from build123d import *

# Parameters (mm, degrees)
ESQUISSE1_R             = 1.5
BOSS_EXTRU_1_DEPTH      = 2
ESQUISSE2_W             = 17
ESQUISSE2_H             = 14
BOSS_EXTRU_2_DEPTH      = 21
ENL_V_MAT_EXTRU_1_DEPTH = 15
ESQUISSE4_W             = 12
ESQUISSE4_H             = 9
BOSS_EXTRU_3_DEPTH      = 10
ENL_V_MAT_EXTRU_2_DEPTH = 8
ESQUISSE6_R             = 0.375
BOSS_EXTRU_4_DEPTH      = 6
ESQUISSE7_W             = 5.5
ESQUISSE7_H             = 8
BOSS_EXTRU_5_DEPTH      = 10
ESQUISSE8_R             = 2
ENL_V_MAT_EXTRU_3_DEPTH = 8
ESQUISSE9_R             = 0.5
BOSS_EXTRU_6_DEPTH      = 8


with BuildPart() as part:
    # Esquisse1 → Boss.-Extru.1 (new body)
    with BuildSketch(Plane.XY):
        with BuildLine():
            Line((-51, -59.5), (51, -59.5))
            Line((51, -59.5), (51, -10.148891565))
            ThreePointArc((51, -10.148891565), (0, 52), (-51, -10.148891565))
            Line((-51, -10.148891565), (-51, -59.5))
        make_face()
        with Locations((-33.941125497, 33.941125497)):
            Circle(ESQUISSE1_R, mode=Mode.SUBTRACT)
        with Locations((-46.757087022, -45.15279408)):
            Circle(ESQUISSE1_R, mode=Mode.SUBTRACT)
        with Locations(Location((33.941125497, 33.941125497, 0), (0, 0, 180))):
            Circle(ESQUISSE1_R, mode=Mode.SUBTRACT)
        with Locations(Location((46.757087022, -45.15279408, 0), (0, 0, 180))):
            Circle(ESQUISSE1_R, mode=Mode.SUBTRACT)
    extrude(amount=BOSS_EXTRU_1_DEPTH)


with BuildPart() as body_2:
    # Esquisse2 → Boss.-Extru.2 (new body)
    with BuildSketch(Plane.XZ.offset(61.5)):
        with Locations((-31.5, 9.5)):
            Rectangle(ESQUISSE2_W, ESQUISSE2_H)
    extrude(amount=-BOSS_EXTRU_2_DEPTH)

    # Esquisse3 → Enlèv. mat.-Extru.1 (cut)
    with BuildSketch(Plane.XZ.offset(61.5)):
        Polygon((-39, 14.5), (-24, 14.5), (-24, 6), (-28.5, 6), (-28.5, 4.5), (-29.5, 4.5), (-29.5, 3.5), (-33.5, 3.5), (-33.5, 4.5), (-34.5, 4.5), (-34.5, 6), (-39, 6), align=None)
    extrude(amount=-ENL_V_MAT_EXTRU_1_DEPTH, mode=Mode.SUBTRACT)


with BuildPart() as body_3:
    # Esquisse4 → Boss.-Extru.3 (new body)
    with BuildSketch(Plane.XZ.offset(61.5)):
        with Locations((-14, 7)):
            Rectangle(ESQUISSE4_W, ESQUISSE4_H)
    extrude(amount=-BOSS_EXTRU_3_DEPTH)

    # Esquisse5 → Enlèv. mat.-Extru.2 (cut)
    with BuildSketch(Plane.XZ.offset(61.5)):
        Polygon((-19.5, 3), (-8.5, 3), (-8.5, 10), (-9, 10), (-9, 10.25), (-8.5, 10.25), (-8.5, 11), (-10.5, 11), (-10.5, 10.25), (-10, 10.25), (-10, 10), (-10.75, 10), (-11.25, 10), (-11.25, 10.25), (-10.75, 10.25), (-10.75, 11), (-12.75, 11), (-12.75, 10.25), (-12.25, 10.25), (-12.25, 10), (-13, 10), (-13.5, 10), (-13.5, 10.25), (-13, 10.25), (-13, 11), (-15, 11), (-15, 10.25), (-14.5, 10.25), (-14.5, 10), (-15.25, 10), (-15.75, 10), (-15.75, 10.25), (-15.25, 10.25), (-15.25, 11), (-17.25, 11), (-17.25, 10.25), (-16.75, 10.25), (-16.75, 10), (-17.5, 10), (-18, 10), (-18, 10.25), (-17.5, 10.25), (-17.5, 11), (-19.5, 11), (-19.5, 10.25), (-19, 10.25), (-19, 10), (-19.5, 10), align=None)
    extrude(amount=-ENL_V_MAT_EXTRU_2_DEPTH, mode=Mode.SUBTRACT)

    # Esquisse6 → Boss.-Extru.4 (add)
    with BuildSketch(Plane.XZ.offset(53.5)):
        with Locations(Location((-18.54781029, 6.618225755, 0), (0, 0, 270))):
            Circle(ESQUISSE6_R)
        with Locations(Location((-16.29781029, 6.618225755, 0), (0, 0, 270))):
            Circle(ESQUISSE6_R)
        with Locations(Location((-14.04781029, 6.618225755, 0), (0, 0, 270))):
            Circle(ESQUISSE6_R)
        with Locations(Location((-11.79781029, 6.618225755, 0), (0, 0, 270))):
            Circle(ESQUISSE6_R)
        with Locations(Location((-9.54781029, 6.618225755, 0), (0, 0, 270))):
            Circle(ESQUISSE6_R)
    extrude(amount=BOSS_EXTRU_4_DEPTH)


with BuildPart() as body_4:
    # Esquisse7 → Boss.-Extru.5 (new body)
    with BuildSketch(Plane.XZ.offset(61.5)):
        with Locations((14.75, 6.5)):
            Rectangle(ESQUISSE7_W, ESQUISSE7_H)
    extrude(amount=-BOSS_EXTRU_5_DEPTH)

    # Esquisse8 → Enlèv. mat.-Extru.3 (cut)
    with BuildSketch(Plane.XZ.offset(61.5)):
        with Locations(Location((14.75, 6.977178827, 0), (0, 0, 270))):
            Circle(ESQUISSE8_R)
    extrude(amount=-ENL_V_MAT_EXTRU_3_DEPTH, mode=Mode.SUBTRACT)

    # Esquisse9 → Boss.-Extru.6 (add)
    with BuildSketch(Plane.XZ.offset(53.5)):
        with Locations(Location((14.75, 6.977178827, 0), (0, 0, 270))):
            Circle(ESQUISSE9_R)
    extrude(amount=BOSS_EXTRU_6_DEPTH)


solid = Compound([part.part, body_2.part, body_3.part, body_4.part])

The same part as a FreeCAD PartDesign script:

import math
import FreeCAD as App
import Part
import Sketcher

V = App.Vector
Q = App.Units.Quantity


def add_polygon(sketch, points):
    """Adds a closed chain of lines whose ends are joined by coincident constraints."""
    first, n = sketch.GeometryCount, len(points)
    for a, b in zip(points, points[1:] + points[:1]):
        sketch.addGeometry(Part.LineSegment(App.Vector(*a, 0), App.Vector(*b, 0)), False)
    for i in range(n):
        sketch.addConstraint(Sketcher.Constraint("Coincident", first + i, 2, first + (i + 1) % n, 1))

doc = App.newDocument("Part")
body = doc.addObject("PartDesign::Body", "Body")

sketch1 = doc.addObject("Sketcher::SketchObject", "Sketch")
body.addObject(sketch1)
sketch1.AttachmentSupport = (doc.XY_Plane, [""])
sketch1.MapMode = "FlatFace"
sketch1.addGeometry([
    Part.LineSegment(V(-51, -59.5, 0), V(51, -59.5, 0)),
    Part.LineSegment(V(51, -59.5, 0), V(51, -10.148892, 0)),
    Part.ArcOfCircle(Part.Circle(V(0, 0, 0), V(0, 0, 1), 52), math.radians(-11.254713), math.radians(191.254713)),
    Part.LineSegment(V(-51, -10.148892, 0), V(-51, -59.5, 0)),
    Part.Circle(V(-46.757087, -45.152794, 0), V(0, 0, 1), 1.5),
    Part.Circle(V(46.757087, -45.152794, 0), V(0, 0, 1), 1.5),
    Part.Circle(V(-33.941125, 33.941125, 0), V(0, 0, 1), 1.5),
    Part.Circle(V(33.941125, 33.941125, 0), V(0, 0, 1), 1.5),
], False)
sketch1.addConstraint([
    Sketcher.Constraint("Coincident", 0, 2, 1, 1),
    Sketcher.Constraint("Coincident", 1, 2, 2, 1),
    Sketcher.Constraint("Coincident", 2, 2, 3, 1),
    Sketcher.Constraint("Coincident", 3, 2, 0, 1),
    Sketcher.Constraint("Horizontal", 0),
    Sketcher.Constraint("Vertical", 1),
    Sketcher.Constraint("Vertical", 3),
    Sketcher.Constraint("Coincident", 2, 3, -1, 1),
    Sketcher.Constraint("Equal", 4, 5),
    Sketcher.Constraint("Equal", 5, 6),
    Sketcher.Constraint("Equal", 6, 7),
    Sketcher.Constraint("Symmetric", 4, 3, 5, 3, -2),
    Sketcher.Constraint("Symmetric", 6, 3, 7, 3, -2),
    Sketcher.Constraint("Horizontal", 1, 2, 2, 2),
    Sketcher.Constraint("Diameter", 4, Q("3 mm")),
    Sketcher.Constraint("Radius", 2, Q("52 mm")),
    Sketcher.Constraint("DistanceX", 0, 1, 0, 2, Q("102 mm")),
    Sketcher.Constraint("DistanceY", 0, 2, -1, 1, Q("59.5 mm")),
    Sketcher.Constraint("DistanceX", 4, 3, 6, 3, Q("12.815962 mm")),
    Sketcher.Constraint("DistanceY", 4, 3, 6, 3, Q("79.09392 mm")),
    Sketcher.Constraint("DistanceX", 6, 3, 7, 3, Q("67.882251 mm")),
    Sketcher.Constraint("DistanceY", 4, 3, -1, 1, Q("45.152794 mm")),
])
pad1 = doc.addObject("PartDesign::Pad", "Pad")
body.addObject(pad1)
pad1.Profile = sketch1
pad1.Length = 2
body2 = doc.addObject("PartDesign::Body", "Body001")

sketch2 = doc.addObject("Sketcher::SketchObject", "Sketch001")
body2.addObject(sketch2)
sketch2.AttachmentSupport = (doc.getObject("XZ_Plane001"), [""])
sketch2.MapMode = "FlatFace"
sketch2.AttachmentOffset = App.Placement(V(0, 0, 61.5), App.Rotation())
add_polygon(sketch2, [(-40, 16.5), (-40, 2.5), (-23, 2.5), (-23, 16.5)])
sketch2.addConstraint([
    Sketcher.Constraint("Vertical", 0),
    Sketcher.Constraint("Horizontal", 1),
    Sketcher.Constraint("Vertical", 2),
    Sketcher.Constraint("Horizontal", 3),
    Sketcher.Constraint("DistanceX", 1, 1, 1, 2, Q("17 mm")),
    Sketcher.Constraint("DistanceY", 0, 2, 0, 1, Q("14 mm")),
    Sketcher.Constraint("DistanceX", 0, 2, -1, 1, Q("40 mm")),
    Sketcher.Constraint("DistanceY", -1, 1, 0, 2, Q("2.5 mm")),
])
pad2 = doc.addObject("PartDesign::Pad", "Pad001")
body2.addObject(pad2)
pad2.Profile = sketch2
pad2.Length = 21
pad2.Reversed = True

sketch3 = doc.addObject("Sketcher::SketchObject", "Sketch002")
body2.addObject(sketch3)
sketch3.AttachmentSupport = (doc.getObject("XZ_Plane001"), [""])
sketch3.MapMode = "FlatFace"
sketch3.AttachmentOffset = App.Placement(V(0, 0, 61.5), App.Rotation())
add_polygon(sketch3, [(-24, 14.5), (-39, 14.5), (-39, 6), (-34.5, 6), (-34.5, 4.5), (-33.5, 4.5), (-33.5, 3.5), (-29.5, 3.5), (-29.5, 4.5), (-28.5, 4.5), (-28.5, 6), (-24, 6)])
sketch3.addConstraint([
    Sketcher.Constraint("Horizontal", 0),
    Sketcher.Constraint("Vertical", 1),
    Sketcher.Constraint("Horizontal", 2),
    Sketcher.Constraint("Vertical", 3),
    Sketcher.Constraint("Horizontal", 4),
    Sketcher.Constraint("Vertical", 5),
    Sketcher.Constraint("Horizontal", 6),
    Sketcher.Constraint("Vertical", 7),
    Sketcher.Constraint("Horizontal", 8),
    Sketcher.Constraint("Vertical", 9),
    Sketcher.Constraint("Horizontal", 10),
    Sketcher.Constraint("Vertical", 11),
    Sketcher.Constraint("Horizontal", 4, 2, 7, 2),
    Sketcher.Constraint("Horizontal", 2, 2, 9, 2),
    Sketcher.Constraint("Equal", 4, 8),
    Sketcher.Constraint("Equal", 2, 10),
    Sketcher.Constraint("Equal", 8, 5),
    Sketcher.Constraint("DistanceX", 0, 2, 0, 1, Q("15 mm")),
    Sketcher.Constraint("DistanceX", 4, 1, 4, 2, Q("1 mm")),
    Sketcher.Constraint("DistanceX", 6, 1, 6, 2, Q("4 mm")),
    Sketcher.Constraint("DistanceY", 1, 2, 1, 1, Q("8.5 mm")),
    Sketcher.Constraint("DistanceY", 3, 2, 3, 1, Q("1.5 mm")),
    Sketcher.Constraint("DistanceX", 0, 2, -1, 1, Q("39 mm")),
    Sketcher.Constraint("DistanceY", -1, 1, 1, 2, Q("6 mm")),
])
pocket1 = doc.addObject("PartDesign::Pocket", "Pocket")
body2.addObject(pocket1)
pocket1.Profile = sketch3
pocket1.Length = 15
body3 = doc.addObject("PartDesign::Body", "Body002")

sketch4 = doc.addObject("Sketcher::SketchObject", "Sketch003")
body3.addObject(sketch4)
sketch4.AttachmentSupport = (doc.getObject("XZ_Plane002"), [""])
sketch4.MapMode = "FlatFace"
sketch4.AttachmentOffset = App.Placement(V(0, 0, 61.5), App.Rotation())
add_polygon(sketch4, [(-20, 11.5), (-20, 2.5), (-8, 2.5), (-8, 11.5)])
sketch4.addConstraint([
    Sketcher.Constraint("Vertical", 0),
    Sketcher.Constraint("Horizontal", 1),
    Sketcher.Constraint("Vertical", 2),
    Sketcher.Constraint("Horizontal", 3),
    Sketcher.Constraint("DistanceX", 1, 1, 1, 2, Q("12 mm")),
    Sketcher.Constraint("DistanceY", 0, 2, 0, 1, Q("9 mm")),
    Sketcher.Constraint("DistanceX", 0, 2, -1, 1, Q("20 mm")),
    Sketcher.Constraint("DistanceY", -1, 1, 0, 2, Q("2.5 mm")),
])
pad3 = doc.addObject("PartDesign::Pad", "Pad002")
body3.addObject(pad3)
pad3.Profile = sketch4
pad3.Length = 10
pad3.Reversed = True

sketch5 = doc.addObject("Sketcher::SketchObject", "Sketch004")
body3.addObject(sketch5)
sketch5.AttachmentSupport = (doc.getObject("XZ_Plane002"), [""])
sketch5.MapMode = "FlatFace"
sketch5.AttachmentOffset = App.Placement(V(0, 0, 61.5), App.Rotation())
add_polygon(sketch5, [(-19.5, 3), (-8.5, 3), (-8.5, 10), (-9, 10), (-9, 10.25), (-8.5, 10.25), (-8.5, 11), (-10.5, 11), (-10.5, 10.25), (-10, 10.25), (-10, 10), (-11.25, 10), (-11.25, 10.25), (-10.75, 10.25), (-10.75, 11), (-12.75, 11), (-12.75, 10.25), (-12.25, 10.25), (-12.25, 10), (-13.5, 10), (-13.5, 10.25), (-13, 10.25), (-13, 11), (-15, 11), (-15, 10.25), (-14.5, 10.25), (-14.5, 10), (-15.75, 10), (-15.75, 10.25), (-15.25, 10.25), (-15.25, 11), (-17.25, 11), (-17.25, 10.25), (-16.75, 10.25), (-16.75, 10), (-18, 10), (-18, 10.25), (-17.5, 10.25), (-17.5, 11), (-19.5, 11), (-19.5, 10.25), (-19, 10.25), (-19, 10), (-19.5, 10)])
sketch5.addConstraint([
    Sketcher.Constraint("Horizontal", 0),
    Sketcher.Constraint("Vertical", 1),
    Sketcher.Constraint("Horizontal", 2),
    Sketcher.Constraint("Vertical", 3),
    Sketcher.Constraint("Horizontal", 4),
    Sketcher.Constraint("Vertical", 5),
    Sketcher.Constraint("Horizontal", 6),
    Sketcher.Constraint("Vertical", 7),
    Sketcher.Constraint("Horizontal", 8),
    Sketcher.Constraint("Vertical", 9),
    Sketcher.Constraint("Horizontal", 10),
    Sketcher.Constraint("Vertical", 11),
    Sketcher.Constraint("Horizontal", 12),
    Sketcher.Constraint("Vertical", 13),
    Sketcher.Constraint("Horizontal", 14),
    Sketcher.Constraint("Vertical", 15),
    Sketcher.Constraint("Horizontal", 16),
    Sketcher.Constraint("Vertical", 17),
    Sketcher.Constraint("Horizontal", 18),
    Sketcher.Constraint("Vertical", 19),
    Sketcher.Constraint("Horizontal", 20),
    Sketcher.Constraint("Vertical", 21),
    Sketcher.Constraint("Horizontal", 22),
    Sketcher.Constraint("Vertical", 23),
    Sketcher.Constraint("Horizontal", 24),
    Sketcher.Constraint("Vertical", 25),
    Sketcher.Constraint("Horizontal", 26),
    Sketcher.Constraint("Vertical", 27),
    Sketcher.Constraint("Horizontal", 28),
    Sketcher.Constraint("Vertical", 29),
    Sketcher.Constraint("Horizontal", 30),
    Sketcher.Constraint("Vertical", 31),
    Sketcher.Constraint("Horizontal", 32),
    Sketcher.Constraint("Vertical", 33),
    Sketcher.Constraint("Horizontal", 34),
    Sketcher.Constraint("Vertical", 35),
    Sketcher.Constraint("Horizontal", 36),
    Sketcher.Constraint("Vertical", 37),
    Sketcher.Constraint("Horizontal", 38),
    Sketcher.Constraint("Vertical", 39),
    Sketcher.Constraint("Horizontal", 40),
    Sketcher.Constraint("Vertical", 41),
    Sketcher.Constraint("Horizontal", 42),
    Sketcher.Constraint("Vertical", 43),
    Sketcher.Constraint("Horizontal", 4, 2, 7, 2),
    Sketcher.Constraint("Horizontal", 2, 2, 9, 2),
    Sketcher.Constraint("Horizontal", 8, 2, 11, 2),
    Sketcher.Constraint("Horizontal", 6, 2, 13, 2),
    Sketcher.Constraint("Horizontal", 12, 2, 15, 2),
    Sketcher.Constraint("Horizontal", 10, 2, 17, 2),
    Sketcher.Constraint("Horizontal", 16, 2, 19, 2),
    Sketcher.Constraint("Horizontal", 14, 2, 21, 2),
    Sketcher.Constraint("Horizontal", 20, 2, 23, 2),
    Sketcher.Constraint("Horizontal", 18, 2, 25, 2),
    Sketcher.Constraint("Horizontal", 24, 2, 27, 2),
    Sketcher.Constraint("Horizontal", 22, 2, 29, 2),
    Sketcher.Constraint("Horizontal", 28, 2, 31, 2),
    Sketcher.Constraint("Horizontal", 26, 2, 33, 2),
    Sketcher.Constraint("Horizontal", 32, 2, 35, 2),
    Sketcher.Constraint("Horizontal", 30, 2, 37, 2),
    Sketcher.Constraint("Horizontal", 36, 2, 39, 2),
    Sketcher.Constraint("Horizontal", 34, 2, 41, 2),
    Sketcher.Constraint("Vertical", 1, 2, 4, 2),
    Sketcher.Constraint("Vertical", 39, 2, 42, 2),
    Sketcher.Constraint("Equal", 4, 8),
    Sketcher.Constraint("Equal", 8, 12),
    Sketcher.Constraint("Equal", 6, 14),
    Sketcher.Constraint("Equal", 12, 16),
    Sketcher.Constraint("Equal", 10, 18),
    Sketcher.Constraint("Equal", 16, 20),
    Sketcher.Constraint("Equal", 14, 22),
    Sketcher.Constraint("Equal", 20, 24),
    Sketcher.Constraint("Equal", 18, 26),
    Sketcher.Constraint("Equal", 24, 28),
    Sketcher.Constraint("Equal", 22, 30),
    Sketcher.Constraint("Equal", 28, 32),
    Sketcher.Constraint("Equal", 26, 34),
    Sketcher.Constraint("Equal", 32, 36),
    Sketcher.Constraint("Equal", 30, 38),
    Sketcher.Constraint("Equal", 36, 40),
    Sketcher.Constraint("DistanceX", 0, 1, 0, 2, Q("11 mm")),
    Sketcher.Constraint("DistanceX", 6, 2, 6, 1, Q("2 mm")),
    Sketcher.Constraint("DistanceY", 1, 1, 1, 2, Q("7 mm")),
    Sketcher.Constraint("DistanceX", 2, 2, 2, 1, Q("0.5 mm")),
    Sketcher.Constraint("DistanceY", -1, 1, 0, 2, Q("3 mm")),
    Sketcher.Constraint("DistanceX", 2, 2, -1, 1, Q("9 mm")),
    Sketcher.Constraint("DistanceY", -1, 1, 5, 2, Q("11 mm")),
    Sketcher.Constraint("DistanceY", 3, 1, 3, 2, Q("0.25 mm")),
])
pocket2 = doc.addObject("PartDesign::Pocket", "Pocket001")
body3.addObject(pocket2)
pocket2.Profile = sketch5
pocket2.Length = 8

sketch6 = doc.addObject("Sketcher::SketchObject", "Sketch005")
body3.addObject(sketch6)
sketch6.AttachmentSupport = (doc.getObject("XZ_Plane002"), [""])
sketch6.MapMode = "FlatFace"
sketch6.AttachmentOffset = App.Placement(V(0, 0, 53.5), App.Rotation())
sketch6.addGeometry([
    Part.Circle(V(-18.54781, 6.618226, 0), V(0, 0, 1), 0.375),
    Part.Circle(V(-16.29781, 6.618226, 0), V(0, 0, 1), 0.375),
    Part.Circle(V(-14.04781, 6.618226, 0), V(0, 0, 1), 0.375),
    Part.Circle(V(-11.79781, 6.618226, 0), V(0, 0, 1), 0.375),
    Part.Circle(V(-9.54781, 6.618226, 0), V(0, 0, 1), 0.375),
], False)
sketch6.addConstraint([
    Sketcher.Constraint("Equal", 0, 1),
    Sketcher.Constraint("Equal", 1, 2),
    Sketcher.Constraint("Equal", 2, 3),
    Sketcher.Constraint("Equal", 3, 4),
    Sketcher.Constraint("Horizontal", 0, 3, 1, 3),
    Sketcher.Constraint("Horizontal", 1, 3, 2, 3),
    Sketcher.Constraint("Horizontal", 2, 3, 3, 3),
    Sketcher.Constraint("Horizontal", 3, 3, 4, 3),
    Sketcher.Constraint("Diameter", 0, Q("0.75 mm")),
    Sketcher.Constraint("DistanceX", 0, 3, 4, 3, Q("9 mm")),
    Sketcher.Constraint("DistanceX", 0, 3, 2, 3, Q("4.5 mm")),
    Sketcher.Constraint("DistanceX", 1, 3, 3, 3, Q("4.5 mm")),
    Sketcher.Constraint("DistanceX", 0, 3, 1, 3, Q("2.25 mm")),
    Sketcher.Constraint("DistanceX", 0, 3, -1, 1, Q("18.54781 mm")),
    Sketcher.Constraint("DistanceY", -1, 1, 0, 3, Q("6.618226 mm")),
])
pad4 = doc.addObject("PartDesign::Pad", "Pad003")
body3.addObject(pad4)
pad4.Profile = sketch6
pad4.Length = 6
body4 = doc.addObject("PartDesign::Body", "Body003")

sketch7 = doc.addObject("Sketcher::SketchObject", "Sketch006")
body4.addObject(sketch7)
sketch7.AttachmentSupport = (doc.getObject("XZ_Plane003"), [""])
sketch7.MapMode = "FlatFace"
sketch7.AttachmentOffset = App.Placement(V(0, 0, 61.5), App.Rotation())
add_polygon(sketch7, [(12, 10.5), (12, 2.5), (17.5, 2.5), (17.5, 10.5)])
sketch7.addConstraint([
    Sketcher.Constraint("Vertical", 0),
    Sketcher.Constraint("Horizontal", 1),
    Sketcher.Constraint("Vertical", 2),
    Sketcher.Constraint("Horizontal", 3),
    Sketcher.Constraint("DistanceY", 0, 2, 0, 1, Q("8 mm")),
    Sketcher.Constraint("DistanceX", 1, 1, 1, 2, Q("5.5 mm")),
    Sketcher.Constraint("DistanceX", -1, 1, 0, 2, Q("12 mm")),
    Sketcher.Constraint("DistanceY", -1, 1, 0, 2, Q("2.5 mm")),
])
pad5 = doc.addObject("PartDesign::Pad", "Pad004")
body4.addObject(pad5)
pad5.Profile = sketch7
pad5.Length = 10
pad5.Reversed = True

sketch8 = doc.addObject("Sketcher::SketchObject", "Sketch007")
body4.addObject(sketch8)
sketch8.AttachmentSupport = (doc.getObject("XZ_Plane003"), [""])
sketch8.MapMode = "FlatFace"
sketch8.AttachmentOffset = App.Placement(V(0, 0, 61.5), App.Rotation())
sketch8.addGeometry(Part.Circle(V(14.75, 6.977179, 0), V(0, 0, 1), 2), False)
sketch8.addConstraint([
    Sketcher.Constraint("Diameter", 0, Q("4 mm")),
    Sketcher.Constraint("DistanceX", -1, 1, 0, 3, Q("14.75 mm")),
    Sketcher.Constraint("DistanceY", -1, 1, 0, 3, Q("6.977179 mm")),
])
pocket3 = doc.addObject("PartDesign::Pocket", "Pocket002")
body4.addObject(pocket3)
pocket3.Profile = sketch8
pocket3.Length = 8

sketch9 = doc.addObject("Sketcher::SketchObject", "Sketch008")
body4.addObject(sketch9)
sketch9.AttachmentSupport = (doc.getObject("XZ_Plane003"), [""])
sketch9.MapMode = "FlatFace"
sketch9.AttachmentOffset = App.Placement(V(0, 0, 53.5), App.Rotation())
sketch9.addGeometry(Part.Circle(V(14.75, 6.977179, 0), V(0, 0, 1), 0.5), False)
sketch9.addConstraint([
    Sketcher.Constraint("Diameter", 0, Q("1 mm")),
    Sketcher.Constraint("DistanceX", -1, 1, 0, 3, Q("14.75 mm")),
    Sketcher.Constraint("DistanceY", -1, 1, 0, 3, Q("6.977179 mm")),
])
pad6 = doc.addObject("PartDesign::Pad", "Pad005")
body4.addObject(pad6)
pad6.Profile = sketch9
pad6.Length = 8

doc.recompute()
